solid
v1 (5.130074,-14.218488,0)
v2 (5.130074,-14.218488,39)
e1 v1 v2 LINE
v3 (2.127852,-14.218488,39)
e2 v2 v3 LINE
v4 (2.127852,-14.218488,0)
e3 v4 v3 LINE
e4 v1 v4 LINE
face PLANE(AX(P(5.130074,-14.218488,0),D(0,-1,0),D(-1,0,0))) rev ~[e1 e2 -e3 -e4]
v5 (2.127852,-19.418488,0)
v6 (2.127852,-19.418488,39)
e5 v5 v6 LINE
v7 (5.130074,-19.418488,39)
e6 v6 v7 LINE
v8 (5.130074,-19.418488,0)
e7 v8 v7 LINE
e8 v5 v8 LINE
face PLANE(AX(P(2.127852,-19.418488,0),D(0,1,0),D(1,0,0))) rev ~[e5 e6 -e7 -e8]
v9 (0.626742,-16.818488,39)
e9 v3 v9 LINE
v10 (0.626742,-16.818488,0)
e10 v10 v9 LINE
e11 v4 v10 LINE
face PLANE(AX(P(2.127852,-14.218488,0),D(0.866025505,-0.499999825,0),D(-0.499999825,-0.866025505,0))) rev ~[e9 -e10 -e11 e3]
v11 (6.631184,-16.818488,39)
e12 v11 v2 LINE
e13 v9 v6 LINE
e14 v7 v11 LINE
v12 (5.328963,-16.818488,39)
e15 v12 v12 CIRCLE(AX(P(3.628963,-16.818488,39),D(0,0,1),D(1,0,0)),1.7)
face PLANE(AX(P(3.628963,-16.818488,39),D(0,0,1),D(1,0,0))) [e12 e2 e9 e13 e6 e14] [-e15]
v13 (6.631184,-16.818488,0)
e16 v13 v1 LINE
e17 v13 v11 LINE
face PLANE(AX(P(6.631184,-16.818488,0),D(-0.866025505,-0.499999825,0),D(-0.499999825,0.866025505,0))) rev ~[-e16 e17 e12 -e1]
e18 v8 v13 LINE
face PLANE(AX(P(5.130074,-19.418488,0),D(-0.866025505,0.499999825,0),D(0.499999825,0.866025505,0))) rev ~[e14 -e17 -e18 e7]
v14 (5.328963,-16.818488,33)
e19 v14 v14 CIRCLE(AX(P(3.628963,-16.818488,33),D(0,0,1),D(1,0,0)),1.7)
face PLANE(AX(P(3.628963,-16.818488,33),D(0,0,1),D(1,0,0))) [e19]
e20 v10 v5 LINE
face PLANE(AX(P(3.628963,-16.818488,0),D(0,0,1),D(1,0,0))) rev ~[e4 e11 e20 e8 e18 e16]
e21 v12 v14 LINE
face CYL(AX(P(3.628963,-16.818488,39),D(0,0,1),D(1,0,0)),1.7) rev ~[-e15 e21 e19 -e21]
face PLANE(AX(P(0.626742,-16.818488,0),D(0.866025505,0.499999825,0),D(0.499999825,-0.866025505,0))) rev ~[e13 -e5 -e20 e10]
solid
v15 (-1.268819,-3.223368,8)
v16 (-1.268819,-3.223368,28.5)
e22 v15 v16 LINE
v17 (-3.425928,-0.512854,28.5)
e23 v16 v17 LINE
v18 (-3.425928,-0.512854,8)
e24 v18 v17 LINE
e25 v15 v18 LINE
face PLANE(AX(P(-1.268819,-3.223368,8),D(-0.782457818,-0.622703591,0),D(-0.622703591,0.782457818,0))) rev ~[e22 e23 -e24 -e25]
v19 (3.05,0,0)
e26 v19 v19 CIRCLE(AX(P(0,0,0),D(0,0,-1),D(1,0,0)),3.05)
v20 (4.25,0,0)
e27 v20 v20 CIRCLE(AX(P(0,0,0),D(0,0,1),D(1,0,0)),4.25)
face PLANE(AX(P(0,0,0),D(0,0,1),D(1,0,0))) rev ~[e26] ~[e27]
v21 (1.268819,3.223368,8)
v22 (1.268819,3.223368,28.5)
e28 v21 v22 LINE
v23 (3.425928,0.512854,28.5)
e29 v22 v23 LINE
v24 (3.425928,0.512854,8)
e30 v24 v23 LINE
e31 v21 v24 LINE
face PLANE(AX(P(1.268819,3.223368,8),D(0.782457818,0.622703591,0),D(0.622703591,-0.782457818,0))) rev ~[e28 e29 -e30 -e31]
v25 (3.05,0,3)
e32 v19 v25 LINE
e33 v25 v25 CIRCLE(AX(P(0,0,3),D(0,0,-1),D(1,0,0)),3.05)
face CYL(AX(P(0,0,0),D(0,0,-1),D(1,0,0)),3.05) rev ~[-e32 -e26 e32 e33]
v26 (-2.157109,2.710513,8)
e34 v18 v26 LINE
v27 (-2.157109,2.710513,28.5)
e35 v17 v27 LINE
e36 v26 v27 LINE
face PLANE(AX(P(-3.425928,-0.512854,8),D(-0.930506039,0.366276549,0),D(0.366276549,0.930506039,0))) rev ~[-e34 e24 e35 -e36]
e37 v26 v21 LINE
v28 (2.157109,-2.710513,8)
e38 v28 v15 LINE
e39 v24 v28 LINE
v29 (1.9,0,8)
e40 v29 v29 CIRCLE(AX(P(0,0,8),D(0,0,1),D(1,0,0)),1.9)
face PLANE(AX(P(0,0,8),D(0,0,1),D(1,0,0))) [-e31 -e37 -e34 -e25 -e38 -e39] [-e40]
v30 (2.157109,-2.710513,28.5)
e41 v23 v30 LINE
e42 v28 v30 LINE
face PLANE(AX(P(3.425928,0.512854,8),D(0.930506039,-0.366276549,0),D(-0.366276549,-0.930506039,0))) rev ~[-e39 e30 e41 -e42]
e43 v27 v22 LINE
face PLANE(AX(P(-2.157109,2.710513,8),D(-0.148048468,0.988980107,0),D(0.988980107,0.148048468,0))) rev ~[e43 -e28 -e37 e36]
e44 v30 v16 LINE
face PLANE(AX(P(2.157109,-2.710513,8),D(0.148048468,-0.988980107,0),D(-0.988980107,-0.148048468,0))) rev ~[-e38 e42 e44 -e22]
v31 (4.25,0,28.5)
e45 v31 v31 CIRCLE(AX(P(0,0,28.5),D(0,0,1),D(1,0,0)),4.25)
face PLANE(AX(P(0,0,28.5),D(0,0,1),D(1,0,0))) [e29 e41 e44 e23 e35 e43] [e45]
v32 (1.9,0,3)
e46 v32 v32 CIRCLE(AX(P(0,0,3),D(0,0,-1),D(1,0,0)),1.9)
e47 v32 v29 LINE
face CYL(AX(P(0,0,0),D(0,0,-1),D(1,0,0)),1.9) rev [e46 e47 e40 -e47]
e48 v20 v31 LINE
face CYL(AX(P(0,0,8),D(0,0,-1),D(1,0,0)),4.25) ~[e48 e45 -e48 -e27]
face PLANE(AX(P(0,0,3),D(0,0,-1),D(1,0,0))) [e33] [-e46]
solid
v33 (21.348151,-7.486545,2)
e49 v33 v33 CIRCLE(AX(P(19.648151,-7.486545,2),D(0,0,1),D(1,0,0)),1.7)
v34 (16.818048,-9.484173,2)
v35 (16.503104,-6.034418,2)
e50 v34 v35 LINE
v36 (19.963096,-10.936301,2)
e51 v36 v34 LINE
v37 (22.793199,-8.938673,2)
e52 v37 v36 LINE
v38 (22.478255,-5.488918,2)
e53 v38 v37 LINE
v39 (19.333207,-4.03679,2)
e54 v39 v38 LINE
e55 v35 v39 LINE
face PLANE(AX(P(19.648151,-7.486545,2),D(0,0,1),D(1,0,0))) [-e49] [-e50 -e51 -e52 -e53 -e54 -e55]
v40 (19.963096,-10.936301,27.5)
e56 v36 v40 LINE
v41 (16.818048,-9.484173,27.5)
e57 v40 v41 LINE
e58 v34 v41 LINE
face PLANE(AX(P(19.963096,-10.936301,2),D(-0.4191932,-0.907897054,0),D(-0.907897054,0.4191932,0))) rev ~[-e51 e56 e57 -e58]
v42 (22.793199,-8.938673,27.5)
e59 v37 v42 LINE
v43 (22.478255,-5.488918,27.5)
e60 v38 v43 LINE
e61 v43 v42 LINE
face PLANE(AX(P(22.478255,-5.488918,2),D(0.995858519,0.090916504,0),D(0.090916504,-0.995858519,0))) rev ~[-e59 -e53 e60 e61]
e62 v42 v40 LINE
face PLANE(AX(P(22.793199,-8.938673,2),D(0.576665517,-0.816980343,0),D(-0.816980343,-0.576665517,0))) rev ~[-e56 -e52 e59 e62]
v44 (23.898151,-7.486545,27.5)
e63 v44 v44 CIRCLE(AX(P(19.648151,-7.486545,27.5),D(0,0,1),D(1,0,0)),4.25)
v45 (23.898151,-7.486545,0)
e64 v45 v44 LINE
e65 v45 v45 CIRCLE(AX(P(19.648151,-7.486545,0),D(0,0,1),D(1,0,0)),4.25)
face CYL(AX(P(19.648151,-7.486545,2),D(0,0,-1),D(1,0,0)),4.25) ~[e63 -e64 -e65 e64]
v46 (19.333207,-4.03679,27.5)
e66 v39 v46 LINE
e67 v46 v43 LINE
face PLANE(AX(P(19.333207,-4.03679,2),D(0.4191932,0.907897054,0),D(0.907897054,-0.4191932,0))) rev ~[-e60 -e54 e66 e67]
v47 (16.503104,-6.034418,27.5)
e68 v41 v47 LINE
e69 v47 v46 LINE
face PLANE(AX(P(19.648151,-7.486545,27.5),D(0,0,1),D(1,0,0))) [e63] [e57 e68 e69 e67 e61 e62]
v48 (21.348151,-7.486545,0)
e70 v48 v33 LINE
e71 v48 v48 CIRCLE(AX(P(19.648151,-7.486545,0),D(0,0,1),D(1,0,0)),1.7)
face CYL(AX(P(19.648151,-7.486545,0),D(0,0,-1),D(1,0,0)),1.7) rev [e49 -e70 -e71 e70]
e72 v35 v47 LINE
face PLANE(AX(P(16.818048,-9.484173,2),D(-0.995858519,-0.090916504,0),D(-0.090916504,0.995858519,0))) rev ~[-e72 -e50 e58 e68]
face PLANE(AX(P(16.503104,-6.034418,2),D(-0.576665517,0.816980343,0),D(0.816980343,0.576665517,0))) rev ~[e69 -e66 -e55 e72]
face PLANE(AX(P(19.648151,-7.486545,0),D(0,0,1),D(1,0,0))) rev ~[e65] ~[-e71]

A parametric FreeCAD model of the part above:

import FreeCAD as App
import Part
import Sketcher
from FreeCAD import Vector
Q = App.Units.Quantity

doc = App.newDocument("Part")
body = doc.addObject("PartDesign::Body", "Body")

sketch1 = body.newObject("Sketcher::SketchObject", "Sketch")
sketch1.AttachmentSupport = (doc.getObject("XY_Plane"), [""])
sketch1.MapMode = "FlatFace"
sketch1.addGeometry([
    Part.Circle(Vector(0, 0, 0), Vector(0, 0, 1), 4.2),
    Part.Circle(Vector(0, 0, 0), Vector(0, 0, 1), 1.9),
], False)
sketch1.addConstraint([
    Sketcher.Constraint("Coincident", 0, 3, -1, 1),
    Sketcher.Constraint("Coincident", 1, 3, -1, 1),
    Sketcher.Constraint("Diameter", 0, Q("8.5 mm")),
    Sketcher.Constraint("Diameter", 1, Q("3.8 mm")),
])
pad1 = body.newObject("PartDesign::Pad", "Pad")
pad1.Profile = sketch1
pad1.Length = 8

sketch2 = body.newObject("Sketcher::SketchObject", "Sketch001")
sketch2.AttachmentSupport = (doc.getObject("XY_Plane"), [""])
sketch2.MapMode = "FlatFace"
sketch2.addGeometry(Part.Circle(Vector(0, 0, 0), Vector(0, 0, 1), 3), False)
sketch2.addConstraint([
    Sketcher.Constraint("Coincident", 0, 3, -1, 1),
    Sketcher.Constraint("Diameter", 0, Q("6.1 mm")),
])
pocket1 = body.newObject("PartDesign::Pocket", "Pocket")
pocket1.Profile = sketch2
pocket1.Length = 3
pocket1.Reversed = True

sketch3 = body.newObject("Sketcher::SketchObject", "Sketch002")
sketch3.AttachmentSupport = (doc.getObject("XY_Plane"), [""])
sketch3.MapMode = "FlatFace"
sketch3.AttachmentOffset = App.Placement(Vector(0, 0, 8), App.Rotation())
sketch3.addGeometry([
    Part.Circle(Vector(0, 0, 0), Vector(0, 0, 1), 4.2),
    Part.LineSegment(Vector(-3.4, -0.5, 0), Vector(-2.2, 2.7, 0)),
    Part.LineSegment(Vector(-2.2, 2.7, 0), Vector(1.3, 3.2, 0)),
    Part.LineSegment(Vector(1.3, 3.2, 0), Vector(3.4, 0.5, 0)),
    Part.LineSegment(Vector(3.4, 0.5, 0), Vector(2.2, -2.7, 0)),
    Part.LineSegment(Vector(2.2, -2.7, 0), Vector(-1.3, -3.2, 0)),
    Part.LineSegment(Vector(-1.3, -3.2, 0), Vector(-3.4, -0.5, 0)),
], False)
sketch3.addConstraint([
    Sketcher.Constraint("Coincident", 1, 2, 2, 1),
    Sketcher.Constraint("Coincident", 2, 2, 3, 1),
    Sketcher.Constraint("Coincident", 3, 2, 4, 1),
    Sketcher.Constraint("Coincident", 4, 2, 5, 1),
    Sketcher.Constraint("Coincident", 5, 2, 6, 1),
    Sketcher.Constraint("Coincident", 6, 2, 1, 1),
    Sketcher.Constraint("Coincident", 0, 3, -1, 1),
    Sketcher.Constraint("Symmetric", 1, 2, 4, 2, -1, 1),
    Sketcher.Constraint("Symmetric", 2, 2, 5, 2, -1, 1),
    Sketcher.Constraint("Symmetric", 3, 2, 6, 2, -1, 1),
    Sketcher.Constraint("Equal", 1, 2),
    Sketcher.Constraint("Equal", 2, 3),
    Sketcher.Constraint("Diameter", 0, Q("8.5 mm")),
    Sketcher.Constraint("Distance", 1, Q("3.464101 mm")),
    Sketcher.Constraint("DistanceX", 1, 2, -1, 1, Q("2.157109 mm")),
    Sketcher.Constraint("DistanceX", -1, 1, 2, 2, Q("1.268819 mm")),
    Sketcher.Constraint("DistanceX", 2, 2, 3, 2, Q("2.157109 mm")),
])
pad2 = body.newObject("PartDesign::Pad", "Pad001")
pad2.Profile = sketch3
pad2.Length = 20.5
body2 = doc.addObject("PartDesign::Body", "Body001")

sketch4 = body2.newObject("Sketcher::SketchObject", "Sketch003")
sketch4.AttachmentSupport = (doc.getObject("XY_Plane001"), [""])
sketch4.MapMode = "FlatFace"
sketch4.addGeometry([
    Part.Circle(Vector(19.6, -7.5, 0), Vector(0, 0, 1), 4.2),
    Part.Circle(Vector(19.6, -7.5, 0), Vector(0, 0, 1), 1.7),
], False)
sketch4.addConstraint([
    Sketcher.Constraint("Coincident", 1, 3, 0, 3),
    Sketcher.Constraint("Diameter", 0, Q("8.5 mm")),
    Sketcher.Constraint("Diameter", 1, Q("3.4 mm")),
    Sketcher.Constraint("DistanceX", -1, 1, 0, 3, Q("19.648151 mm")),
    Sketcher.Constraint("DistanceY", 0, 3, -1, 1, Q("7.486545 mm")),
])
pad3 = body2.newObject("PartDesign::Pad", "Pad002")
pad3.Profile = sketch4
pad3.Length = 2

sketch5 = body2.newObject("Sketcher::SketchObject", "Sketch004")
sketch5.AttachmentSupport = (doc.getObject("XY_Plane001"), [""])
sketch5.MapMode = "FlatFace"
sketch5.AttachmentOffset = App.Placement(Vector(0, 0, 2), App.Rotation())
sketch5.addGeometry([
    Part.Circle(Vector(19.6, -7.5, 0), Vector(0, 0, 1), 4.2),
    Part.LineSegment(Vector(16.8, -9.5, 0), Vector(16.5, -6, 0)),
    Part.LineSegment(Vector(16.5, -6, 0), Vector(19.3, -4, 0)),
    Part.LineSegment(Vector(19.3, -4, 0), Vector(22.5, -5.5, 0)),
    Part.LineSegment(Vector(22.5, -5.5, 0), Vector(22.8, -8.9, 0)),
    Part.LineSegment(Vector(22.8, -8.9, 0), Vector(20, -10.9, 0)),
    Part.LineSegment(Vector(20, -10.9, 0), Vector(16.8, -9.5, 0)),
], False)
sketch5.addConstraint([
    Sketcher.Constraint("Coincident", 1, 2, 2, 1),
    Sketcher.Constraint("Coincident", 2, 2, 3, 1),
    Sketcher.Constraint("Coincident", 3, 2, 4, 1),
    Sketcher.Constraint("Coincident", 4, 2, 5, 1),
    Sketcher.Constraint("Coincident", 5, 2, 6, 1),
    Sketcher.Constraint("Coincident", 6, 2, 1, 1),
    Sketcher.Constraint("Parallel", 1, 4),
    Sketcher.Constraint("Parallel", 2, 5),
    Sketcher.Constraint("Parallel", 3, 6),
    Sketcher.Constraint("Equal", 1, 2),
    Sketcher.Constraint("Equal", 2, 3),
    Sketcher.Constraint("Equal", 3, 4),
    Sketcher.Constraint("Diameter", 0, Q("8.5 mm")),
    Sketcher.Constraint("Distance", 1, Q("3.464102 mm")),
    Sketcher.Constraint("DistanceX", -1, 1, 4, 2, Q("22.793199 mm")),
    Sketcher.Constraint("DistanceY", 5, 2, -1, 1, Q("10.936301 mm")),
    Sketcher.Constraint("DistanceY", 1, 2, 3, 2, Q("0.5455 mm")),
    Sketcher.Constraint("DistanceX", -1, 1, 0, 3, Q("19.648151 mm")),
    Sketcher.Constraint("DistanceY", 2, 2, -1, 1, Q("4.03679 mm")),
    Sketcher.Constraint("DistanceX", -1, 1, 6, 2, Q("16.818048 mm")),
    Sketcher.Constraint("DistanceY", 4, 2, 0, 3, Q("1.452128 mm")),
])
pad4 = body2.newObject("PartDesign::Pad", "Pad003")
pad4.Profile = sketch5
pad4.Length = 25.5
body3 = doc.addObject("PartDesign::Body", "Body002")

sketch6 = body3.newObject("Sketcher::SketchObject", "Sketch005")
sketch6.AttachmentSupport = (doc.getObject("XY_Plane002"), [""])
sketch6.MapMode = "FlatFace"
sketch6.addGeometry([
    Part.LineSegment(Vector(5.1, -14.2, 0), Vector(2.1, -14.2, 0)),
    Part.LineSegment(Vector(2.1, -14.2, 0), Vector(0.6, -16.8, 0)),
    Part.LineSegment(Vector(0.6, -16.8, 0), Vector(2.1, -19.4, 0)),
    Part.LineSegment(Vector(2.1, -19.4, 0), Vector(5.1, -19.4, 0)),
    Part.LineSegment(Vector(5.1, -19.4, 0), Vector(6.6, -16.8, 0)),
    Part.LineSegment(Vector(6.6, -16.8, 0), Vector(5.1, -14.2, 0)),
], False)
sketch6.addConstraint([
    Sketcher.Constraint("Coincident", 0, 2, 1, 1),
    Sketcher.Constraint("Coincident", 1, 2, 2, 1),
    Sketcher.Constraint("Coincident", 2, 2, 3, 1),
    Sketcher.Constraint("Coincident", 3, 2, 4, 1),
    Sketcher.Constraint("Coincident", 4, 2, 5, 1),
    Sketcher.Constraint("Coincident", 5, 2, 0, 1),
    Sketcher.Constraint("Horizontal", 0),
    Sketcher.Constraint("Horizontal", 3),
    Sketcher.Constraint("Parallel", 1, 4),
    Sketcher.Constraint("Parallel", 2, 5),
    Sketcher.Constraint("Horizontal", 1, 2, 4, 2),
    Sketcher.Constraint("Vertical", 0, 2, 2, 2),
    Sketcher.Constraint("Vertical", 3, 2, 5, 2),
    Sketcher.Constraint("Angle", 1, Q("-119.999988 deg")),
    Sketcher.Constraint("DistanceY", 1, 2, 0, 2, Q("2.6 mm")),
    Sketcher.Constraint("DistanceX", 0, 2, 0, 1, Q("3.002222 mm")),
    Sketcher.Constraint("DistanceX", -1, 1, 0, 2, Q("2.127852 mm")),
    Sketcher.Constraint("DistanceY", 0, 2, -1, 1, Q("14.218488 mm")),
])
pad5 = body3.newObject("PartDesign::Pad", "Pad004")
pad5.Profile = sketch6
pad5.Length = 39

sketch7 = body3.newObject("Sketcher::SketchObject", "Sketch006")
sketch7.AttachmentSupport = (doc.getObject("XY_Plane002"), [""])
sketch7.MapMode = "FlatFace"
sketch7.AttachmentOffset = App.Placement(Vector(0, 0, 39), App.Rotation())
sketch7.addGeometry(Part.Circle(Vector(3.6, -16.8, 0), Vector(0, 0, 1), 1.7), False)
sketch7.addConstraint([
    Sketcher.Constraint("Diameter", 0, Q("3.4 mm")),
    Sketcher.Constraint("DistanceX", -1, 1, 0, 3, Q("3.628963 mm")),
    Sketcher.Constraint("DistanceY", 0, 3, -1, 1, Q("16.818488 mm")),
])
pocket2 = body3.newObject("PartDesign::Pocket", "Pocket001")
pocket2.Profile = sketch7
pocket2.Length = 6

doc.recompute()
